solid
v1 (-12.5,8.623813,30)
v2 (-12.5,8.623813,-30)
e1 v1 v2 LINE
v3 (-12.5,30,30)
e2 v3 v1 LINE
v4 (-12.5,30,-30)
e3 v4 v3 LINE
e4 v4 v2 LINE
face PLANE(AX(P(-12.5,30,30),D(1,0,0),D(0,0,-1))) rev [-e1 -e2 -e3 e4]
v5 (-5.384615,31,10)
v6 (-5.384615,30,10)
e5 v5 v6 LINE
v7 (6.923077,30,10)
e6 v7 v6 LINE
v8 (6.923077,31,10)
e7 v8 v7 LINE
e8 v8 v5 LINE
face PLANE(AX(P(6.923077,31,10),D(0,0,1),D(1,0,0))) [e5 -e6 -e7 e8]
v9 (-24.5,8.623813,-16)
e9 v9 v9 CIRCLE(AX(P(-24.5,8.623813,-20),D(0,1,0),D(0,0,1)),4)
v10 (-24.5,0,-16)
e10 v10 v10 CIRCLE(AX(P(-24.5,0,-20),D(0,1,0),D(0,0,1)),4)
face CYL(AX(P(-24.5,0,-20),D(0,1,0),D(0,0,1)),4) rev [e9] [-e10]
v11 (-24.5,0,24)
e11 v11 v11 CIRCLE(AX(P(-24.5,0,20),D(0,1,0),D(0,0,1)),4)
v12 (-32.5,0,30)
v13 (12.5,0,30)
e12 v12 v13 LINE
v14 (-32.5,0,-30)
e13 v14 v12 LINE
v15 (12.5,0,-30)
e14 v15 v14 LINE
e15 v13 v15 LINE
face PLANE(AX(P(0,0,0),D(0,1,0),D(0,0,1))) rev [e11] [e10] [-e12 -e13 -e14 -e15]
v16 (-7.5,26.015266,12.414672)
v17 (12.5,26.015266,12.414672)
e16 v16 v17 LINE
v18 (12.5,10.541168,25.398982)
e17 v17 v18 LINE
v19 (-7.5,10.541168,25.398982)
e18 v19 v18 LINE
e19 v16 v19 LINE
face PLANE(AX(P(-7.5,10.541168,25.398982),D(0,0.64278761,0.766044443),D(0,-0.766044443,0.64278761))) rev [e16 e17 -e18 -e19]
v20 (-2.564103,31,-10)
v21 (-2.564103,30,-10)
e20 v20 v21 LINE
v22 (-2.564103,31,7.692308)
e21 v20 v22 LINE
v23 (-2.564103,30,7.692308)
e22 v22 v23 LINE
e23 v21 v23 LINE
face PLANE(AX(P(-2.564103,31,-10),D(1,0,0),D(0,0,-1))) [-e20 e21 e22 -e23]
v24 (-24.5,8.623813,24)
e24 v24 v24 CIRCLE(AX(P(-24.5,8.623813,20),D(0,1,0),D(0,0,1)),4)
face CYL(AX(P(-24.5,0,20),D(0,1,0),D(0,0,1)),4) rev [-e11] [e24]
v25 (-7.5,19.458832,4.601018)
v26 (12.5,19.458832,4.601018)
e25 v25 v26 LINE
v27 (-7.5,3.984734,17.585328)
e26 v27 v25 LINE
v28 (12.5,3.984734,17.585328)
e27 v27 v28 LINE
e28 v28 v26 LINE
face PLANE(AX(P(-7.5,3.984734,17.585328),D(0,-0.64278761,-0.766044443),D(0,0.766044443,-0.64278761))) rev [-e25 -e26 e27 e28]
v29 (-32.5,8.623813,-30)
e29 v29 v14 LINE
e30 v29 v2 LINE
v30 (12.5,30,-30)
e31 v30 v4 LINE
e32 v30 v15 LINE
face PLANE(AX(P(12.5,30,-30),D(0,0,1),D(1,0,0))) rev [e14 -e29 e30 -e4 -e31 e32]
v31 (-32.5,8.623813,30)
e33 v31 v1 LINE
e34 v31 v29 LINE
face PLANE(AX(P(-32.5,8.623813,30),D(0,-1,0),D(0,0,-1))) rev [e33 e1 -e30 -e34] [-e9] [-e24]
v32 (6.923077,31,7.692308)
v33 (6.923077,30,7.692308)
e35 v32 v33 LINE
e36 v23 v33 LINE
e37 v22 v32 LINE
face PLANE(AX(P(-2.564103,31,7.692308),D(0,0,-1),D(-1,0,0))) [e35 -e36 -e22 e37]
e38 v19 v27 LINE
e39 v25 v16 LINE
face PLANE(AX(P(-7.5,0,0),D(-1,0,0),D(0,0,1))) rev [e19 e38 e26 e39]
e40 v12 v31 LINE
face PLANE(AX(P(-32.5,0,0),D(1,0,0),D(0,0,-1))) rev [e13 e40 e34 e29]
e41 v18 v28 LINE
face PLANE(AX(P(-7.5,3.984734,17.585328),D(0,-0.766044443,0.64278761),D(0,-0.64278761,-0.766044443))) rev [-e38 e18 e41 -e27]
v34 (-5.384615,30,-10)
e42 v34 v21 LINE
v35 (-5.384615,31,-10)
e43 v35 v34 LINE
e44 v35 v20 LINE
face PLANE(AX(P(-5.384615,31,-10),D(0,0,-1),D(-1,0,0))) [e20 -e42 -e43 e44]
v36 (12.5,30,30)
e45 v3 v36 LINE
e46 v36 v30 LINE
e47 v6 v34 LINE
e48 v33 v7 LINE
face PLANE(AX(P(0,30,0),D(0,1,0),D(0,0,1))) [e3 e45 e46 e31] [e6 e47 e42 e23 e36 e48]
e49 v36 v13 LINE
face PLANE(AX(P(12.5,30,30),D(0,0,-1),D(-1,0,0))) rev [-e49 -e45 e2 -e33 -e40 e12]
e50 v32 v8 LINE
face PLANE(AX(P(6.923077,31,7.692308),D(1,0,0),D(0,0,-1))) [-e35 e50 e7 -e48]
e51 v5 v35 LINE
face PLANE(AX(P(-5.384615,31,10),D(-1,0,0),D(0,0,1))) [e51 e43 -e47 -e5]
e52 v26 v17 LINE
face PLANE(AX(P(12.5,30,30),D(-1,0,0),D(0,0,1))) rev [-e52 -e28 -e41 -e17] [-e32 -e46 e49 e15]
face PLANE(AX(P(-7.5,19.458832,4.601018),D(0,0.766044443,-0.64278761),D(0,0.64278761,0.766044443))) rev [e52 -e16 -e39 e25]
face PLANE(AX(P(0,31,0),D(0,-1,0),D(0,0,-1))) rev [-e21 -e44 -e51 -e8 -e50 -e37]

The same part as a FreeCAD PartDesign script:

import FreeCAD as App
import Part
import Sketcher
Q = App.Units.Quantity

doc = App.newDocument("Part")
body = doc.addObject("PartDesign::Body", "Body")

# Sketch on XZ plane
sketch1 = doc.addObject("Sketcher::SketchObject", "Sketch")
body.addObject(sketch1)
sketch1.AttachmentSupport = (doc.XZ_Plane, [""])
sketch1.MapMode = "FlatFace"
sketch1.addGeometry(Part.LineSegment(App.Vector(-12.5, -30, 0), App.Vector(-12.5, 30, 0)), False)
sketch1.addGeometry(Part.LineSegment(App.Vector(-12.5, 30, 0), App.Vector(12.5, 30, 0)), False)
sketch1.addGeometry(Part.LineSegment(App.Vector(12.5, 30, 0), App.Vector(12.5, -30, 0)), False)
sketch1.addGeometry(Part.LineSegment(App.Vector(12.5, -30, 0), App.Vector(-12.5, -30, 0)), False)
sketch1.addConstraint(Sketcher.Constraint("Coincident", 0, 2, 1, 1))
sketch1.addConstraint(Sketcher.Constraint("Coincident", 1, 2, 2, 1))
sketch1.addConstraint(Sketcher.Constraint("Coincident", 2, 2, 3, 1))
sketch1.addConstraint(Sketcher.Constraint("Coincident", 3, 2, 0, 1))
sketch1.addConstraint(Sketcher.Constraint("Vertical", 0))
sketch1.addConstraint(Sketcher.Constraint("Horizontal", 1))
sketch1.addConstraint(Sketcher.Constraint("Vertical", 2))
sketch1.addConstraint(Sketcher.Constraint("Horizontal", 3))
sketch1.addConstraint(Sketcher.Constraint("Symmetric", 0, 2, 2, 2, -1, 1))
sketch1.addConstraint(Sketcher.Constraint("DistanceX", 1, 1, 1, 2, Q("25 mm")))
sketch1.addConstraint(Sketcher.Constraint("DistanceY", 0, 1, 0, 2, Q("60 mm")))
pad1 = doc.addObject("PartDesign::Pad", "Pad")
body.addObject(pad1)
pad1.Profile = sketch1
pad1.Length = 30
pad1.Reversed = True

# Sketch on YZ plane
sketch2 = doc.addObject("Sketcher::SketchObject", "Sketch001")
body.addObject(sketch2)
sketch2.AttachmentSupport = (doc.YZ_Plane, [""])
sketch2.MapMode = "FlatFace"
sketch2.AttachmentOffset = App.Placement(App.Vector(0, 0, -12.5), App.Rotation())
sketch2.addGeometry(Part.LineSegment(App.Vector(8.623813, -30, 0), App.Vector(0, -30, 0)), False)
sketch2.addGeometry(Part.LineSegment(App.Vector(0, -30, 0), App.Vector(0, 30, 0)), False)
sketch2.addGeometry(Part.LineSegment(App.Vector(0, 30, 0), App.Vector(8.623813, 30, 0)), False)
sketch2.addGeometry(Part.LineSegment(App.Vector(8.623813, 30, 0), App.Vector(8.623813, -30, 0)), False)
sketch2.addConstraint(Sketcher.Constraint("Coincident", 0, 2, 1, 1))
sketch2.addConstraint(Sketcher.Constraint("Coincident", 1, 2, 2, 1))
sketch2.addConstraint(Sketcher.Constraint("Coincident", 2, 2, 3, 1))
sketch2.addConstraint(Sketcher.Constraint("Coincident", 3, 2, 0, 1))
sketch2.addConstraint(Sketcher.Constraint("Horizontal", 0))
sketch2.addConstraint(Sketcher.Constraint("Vertical", 1))
sketch2.addConstraint(Sketcher.Constraint("Horizontal", 2))
sketch2.addConstraint(Sketcher.Constraint("Vertical", 3))
sketch2.addConstraint(Sketcher.Constraint("Symmetric", 0, 2, 1, 2, -1, 1))
sketch2.addConstraint(Sketcher.Constraint("DistanceY", 1, 1, 1, 2, Q("60 mm")))
sketch2.addConstraint(Sketcher.Constraint("DistanceX", 0, 2, 0, 1, Q("8.623813 mm")))
pad2 = doc.addObject("PartDesign::Pad", "Pad001")
body.addObject(pad2)
pad2.Profile = sketch2
pad2.Length = 20
pad2.Reversed = True

# Sketch on XZ plane
sketch3 = doc.addObject("Sketcher::SketchObject", "Sketch002")
body.addObject(sketch3)
sketch3.AttachmentSupport = (doc.XZ_Plane, [""])
sketch3.MapMode = "FlatFace"
sketch3.AttachmentOffset = App.Placement(App.Vector(0, 0, -8.623813), App.Rotation())
sketch3.addGeometry(Part.Circle(App.Vector(-24.5, -20, 0), App.Vector(0, 0, 1), 4), False)
sketch3.addGeometry(Part.Circle(App.Vector(-24.5, 20, 0), App.Vector(0, 0, 1), 4), False)
sketch3.addConstraint(Sketcher.Constraint("Equal", 0, 1))
sketch3.addConstraint(Sketcher.Constraint("Symmetric", 0, 3, 1, 3, -1))
sketch3.addConstraint(Sketcher.Constraint("Diameter", 0, Q("8 mm")))
sketch3.addConstraint(Sketcher.Constraint("DistanceY", 0, 3, -1, 1, Q("20 mm")))
sketch3.addConstraint(Sketcher.Constraint("DistanceX", 0, 3, -1, 1, Q("24.5 mm")))
pocket1 = doc.addObject("PartDesign::Pocket", "Pocket")
body.addObject(pocket1)
pocket1.Profile = sketch3
pocket1.Type = "ThroughAll"
pocket1.Reversed = True

# Sketch on YZ plane
sketch4 = doc.addObject("Sketcher::SketchObject", "Sketch003")
body.addObject(sketch4)
sketch4.AttachmentSupport = (doc.YZ_Plane, [""])
sketch4.MapMode = "FlatFace"
sketch4.AttachmentOffset = App.Placement(App.Vector(0, 0, 12.5), App.Rotation())
sketch4.addGeometry(Part.LineSegment(App.Vector(3.984734, 17.585328, 0), App.Vector(19.458832, 4.601018, 0)), False)
sketch4.addGeometry(Part.LineSegment(App.Vector(19.458832, 4.601018, 0), App.Vector(26.015266, 12.414672, 0)), False)
sketch4.addGeometry(Part.LineSegment(App.Vector(26.015266, 12.414672, 0), App.Vector(10.541168, 25.398982, 0)), False)
sketch4.addGeometry(Part.LineSegment(App.Vector(10.541168, 25.398982, 0), App.Vector(3.984734, 17.585328, 0)), False)
sketch4.addConstraint(Sketcher.Constraint("Coincident", 0, 2, 1, 1))
sketch4.addConstraint(Sketcher.Constraint("Coincident", 1, 2, 2, 1))
sketch4.addConstraint(Sketcher.Constraint("Coincident", 2, 2, 3, 1))
sketch4.addConstraint(Sketcher.Constraint("Coincident", 3, 2, 0, 1))
sketch4.addConstraint(Sketcher.Constraint("Perpendicular", 0, 1))
sketch4.addConstraint(Sketcher.Constraint("Perpendicular", 1, 2))
sketch4.addConstraint(Sketcher.Constraint("Perpendicular", 2, 3))
sketch4.addConstraint(Sketcher.Constraint("Angle", 0, Q("-40 deg")))
sketch4.addConstraint(Sketcher.Constraint("Distance", 0, Q("20.2 mm")))
sketch4.addConstraint(Sketcher.Constraint("Distance", 1, Q("10.2 mm")))
sketch4.addConstraint(Sketcher.Constraint("DistanceY", -1, 1, 0, 2, Q("4.601018 mm")))
sketch4.addConstraint(Sketcher.Constraint("DistanceX", -1, 1, 0, 2, Q("19.458832 mm")))
pocket2 = doc.addObject("PartDesign::Pocket", "Pocket001")
body.addObject(pocket2)
pocket2.Profile = sketch4
pocket2.Length = 20

# Sketch on XZ plane
sketch5 = doc.addObject("Sketcher::SketchObject", "Sketch004")
body.addObject(sketch5)
sketch5.AttachmentSupport = (doc.XZ_Plane, [""])
sketch5.MapMode = "FlatFace"
sketch5.AttachmentOffset = App.Placement(App.Vector(0, 0, -30), App.Rotation())
sketch5.addGeometry(Part.LineSegment(App.Vector(-5.384615, -10, 0), App.Vector(-5.384615, 10, 0)), False)
sketch5.addGeometry(Part.LineSegment(App.Vector(-5.384615, 10, 0), App.Vector(6.923077, 10, 0)), False)
sketch5.addGeometry(Part.LineSegment(App.Vector(6.923077, 10, 0), App.Vector(6.923077, 7.692308, 0)), False)
sketch5.addGeometry(Part.LineSegment(App.Vector(6.923077, 7.692308, 0), App.Vector(-2.564103, 7.692308, 0)), False)
sketch5.addGeometry(Part.LineSegment(App.Vector(-2.564103, 7.692308, 0), App.Vector(-2.564103, -10, 0)), False)
sketch5.addGeometry(Part.LineSegment(App.Vector(-2.564103, -10, 0), App.Vector(-5.384615, -10, 0)), False)
sketch5.addConstraint(Sketcher.Constraint("Coincident", 0, 2, 1, 1))
sketch5.addConstraint(Sketcher.Constraint("Coincident", 1, 2, 2, 1))
sketch5.addConstraint(Sketcher.Constraint("Coincident", 2, 2, 3, 1))
sketch5.addConstraint(Sketcher.Constraint("Coincident", 3, 2, 4, 1))
sketch5.addConstraint(Sketcher.Constraint("Coincident", 4, 2, 5, 1))
sketch5.addConstraint(Sketcher.Constraint("Coincident", 5, 2, 0, 1))
sketch5.addConstraint(Sketcher.Constraint("Vertical", 0))
sketch5.addConstraint(Sketcher.Constraint("Horizontal", 1))
sketch5.addConstraint(Sketcher.Constraint("Vertical", 2))
sketch5.addConstraint(Sketcher.Constraint("Horizontal", 3))
sketch5.addConstraint(Sketcher.Constraint("Vertical", 4))
sketch5.addConstraint(Sketcher.Constraint("Horizontal", 5))
sketch5.addConstraint(Sketcher.Constraint("DistanceY", 0, 1, 0, 2, Q("20 mm")))
sketch5.addConstraint(Sketcher.Constraint("DistanceY", -1, 1, 0, 2, Q("10 mm")))
sketch5.addConstraint(Sketcher.Constraint("DistanceX", 3, 2, 3, 1, Q("9.487179 mm")))
sketch5.addConstraint(Sketcher.Constraint("DistanceX", 1, 1, 1, 2, Q("12.307692 mm")))
sketch5.addConstraint(Sketcher.Constraint("DistanceY", 2, 2, 2, 1, Q("2.307692 mm")))
sketch5.addConstraint(Sketcher.Constraint("DistanceX", 0, 2, -1, 1, Q("5.384615 mm")))
pad3 = doc.addObject("PartDesign::Pad", "Pad002")
body.addObject(pad3)
pad3.Profile = sketch5
pad3.Length = 1
pad3.Reversed = True

doc.recompute()
